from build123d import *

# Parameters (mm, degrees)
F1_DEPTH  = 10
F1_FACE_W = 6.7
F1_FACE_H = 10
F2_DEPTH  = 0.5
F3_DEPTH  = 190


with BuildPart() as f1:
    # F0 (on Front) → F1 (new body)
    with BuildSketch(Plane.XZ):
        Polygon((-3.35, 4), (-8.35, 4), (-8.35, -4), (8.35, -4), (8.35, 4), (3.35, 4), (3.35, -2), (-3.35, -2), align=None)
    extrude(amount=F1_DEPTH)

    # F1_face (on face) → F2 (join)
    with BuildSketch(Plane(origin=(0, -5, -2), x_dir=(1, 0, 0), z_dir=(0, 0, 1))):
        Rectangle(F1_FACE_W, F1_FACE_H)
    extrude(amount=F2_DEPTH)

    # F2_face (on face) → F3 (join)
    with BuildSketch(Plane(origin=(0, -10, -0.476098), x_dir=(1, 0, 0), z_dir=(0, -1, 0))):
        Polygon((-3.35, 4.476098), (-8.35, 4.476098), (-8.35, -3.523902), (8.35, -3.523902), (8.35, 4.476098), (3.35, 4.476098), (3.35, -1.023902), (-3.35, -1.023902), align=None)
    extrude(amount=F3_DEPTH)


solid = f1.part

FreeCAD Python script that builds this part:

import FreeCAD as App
import Part
import Sketcher

V = App.Vector
Q = App.Units.Quantity

doc = App.newDocument("Part")
body = doc.addObject("PartDesign::Body", "Body")

sketch1 = body.newObject("Sketcher::SketchObject", "Sketch")
sketch1.AttachmentSupport = (doc.getObject("XZ_Plane"), [""])
sketch1.MapMode = "FlatFace"
sketch1.addGeometry([
    Part.LineSegment(V(-3, 4, 0), V(-8, 4, 0)),
    Part.LineSegment(V(-8, 4, 0), V(-8, -4, 0)),
    Part.LineSegment(V(-8, -4, 0), V(8, -4, 0)),
    Part.LineSegment(V(8, -4, 0), V(8, 4, 0)),
    Part.LineSegment(V(8, 4, 0), V(3, 4, 0)),
    Part.LineSegment(V(3, 4, 0), V(3, -2, 0)),
    Part.LineSegment(V(3, -2, 0), V(-3, -2, 0)),
    Part.LineSegment(V(-3, -2, 0), V(-3, 4, 0)),
], False)
sketch1.addConstraint([
    Sketcher.Constraint("Coincident", 0, 2, 1, 1),
    Sketcher.Constraint("Coincident", 1, 2, 2, 1),
    Sketcher.Constraint("Coincident", 2, 2, 3, 1),
    Sketcher.Constraint("Coincident", 3, 2, 4, 1),
    Sketcher.Constraint("Coincident", 4, 2, 5, 1),
    Sketcher.Constraint("Coincident", 5, 2, 6, 1),
    Sketcher.Constraint("Coincident", 6, 2, 7, 1),
    Sketcher.Constraint("Coincident", 7, 2, 0, 1),
    Sketcher.Constraint("Horizontal", 0),
    Sketcher.Constraint("Vertical", 1),
    Sketcher.Constraint("Horizontal", 2),
    Sketcher.Constraint("Vertical", 3),
    Sketcher.Constraint("Horizontal", 4),
    Sketcher.Constraint("Vertical", 5),
    Sketcher.Constraint("Horizontal", 6),
    Sketcher.Constraint("Vertical", 7),
    Sketcher.Constraint("Symmetric", 0, 2, 2, 2, -1, 1),
    Sketcher.Constraint("Symmetric", 4, 2, 7, 2, -2),
    Sketcher.Constraint("DistanceX", 0, 2, 0, 1, Q("5 mm")),
    Sketcher.Constraint("DistanceY", 1, 2, 1, 1, Q("8 mm")),
    Sketcher.Constraint("DistanceY", 5, 2, 5, 1, Q("6 mm")),
    Sketcher.Constraint("DistanceX", 2, 1, 2, 2, Q("16.7 mm")),
])
pad1 = body.newObject("PartDesign::Pad", "Pad")
pad1.Profile = sketch1
pad1.Length = 10

sketch2 = body.newObject("Sketcher::SketchObject", "Sketch001")
sketch2.AttachmentSupport = (doc.getObject("XY_Plane"), [""])
sketch2.MapMode = "FlatFace"
sketch2.AttachmentOffset = App.Placement(V(0, 0, -2), App.Rotation())
sketch2.addGeometry([
    Part.LineSegment(V(-3, 0, 0), V(-3, -10, 0)),
    Part.LineSegment(V(-3, -10, 0), V(3, -10, 0)),
    Part.LineSegment(V(3, -10, 0), V(3, 0, 0)),
    Part.LineSegment(V(3, 0, 0), V(-3, 0, 0)),
], False)
sketch2.addConstraint([
    Sketcher.Constraint("Coincident", 0, 2, 1, 1),
    Sketcher.Constraint("Coincident", 1, 2, 2, 1),
    Sketcher.Constraint("Coincident", 2, 2, 3, 1),
    Sketcher.Constraint("Coincident", 3, 2, 0, 1),
    Sketcher.Constraint("Vertical", 0),
    Sketcher.Constraint("Horizontal", 1),
    Sketcher.Constraint("Vertical", 2),
    Sketcher.Constraint("Horizontal", 3),
    Sketcher.Constraint("Symmetric", 2, 2, 3, 2, -1, 1),
    Sketcher.Constraint("DistanceY", 0, 2, 0, 1, Q("10 mm")),
    Sketcher.Constraint("DistanceX", 1, 1, 1, 2, Q("6.7 mm")),
])
pad2 = body.newObject("PartDesign::Pad", "Pad001")
pad2.Profile = sketch2
pad2.Length = 0.5

sketch3 = body.newObject("Sketcher::SketchObject", "Sketch002")
sketch3.AttachmentSupport = (doc.getObject("XZ_Plane"), [""])
sketch3.MapMode = "FlatFace"
sketch3.AttachmentOffset = App.Placement(V(0, 0, 10), App.Rotation())
sketch3.addGeometry([
    Part.LineSegment(V(-3, 4, 0), V(-8, 4, 0)),
    Part.LineSegment(V(-8, 4, 0), V(-8, -4, 0)),
    Part.LineSegment(V(-8, -4, 0), V(8, -4, 0)),
    Part.LineSegment(V(8, -4, 0), V(8, 4, 0)),
    Part.LineSegment(V(8, 4, 0), V(3, 4, 0)),
    Part.LineSegment(V(3, 4, 0), V(3, -2, 0)),
    Part.LineSegment(V(3, -2, 0), V(-3, -2, 0)),
    Part.LineSegment(V(-3, -2, 0), V(-3, 4, 0)),
], False)
sketch3.addConstraint([
    Sketcher.Constraint("Coincident", 0, 2, 1, 1),
    Sketcher.Constraint("Coincident", 1, 2, 2, 1),
    Sketcher.Constraint("Coincident", 2, 2, 3, 1),
    Sketcher.Constraint("Coincident", 3, 2, 4, 1),
    Sketcher.Constraint("Coincident", 4, 2, 5, 1),
    Sketcher.Constraint("Coincident", 5, 2, 6, 1),
    Sketcher.Constraint("Coincident", 6, 2, 7, 1),
    Sketcher.Constraint("Coincident", 7, 2, 0, 1),
    Sketcher.Constraint("Horizontal", 0),
    Sketcher.Constraint("Vertical", 1),
    Sketcher.Constraint("Horizontal", 2),
    Sketcher.Constraint("Vertical", 3),
    Sketcher.Constraint("Horizontal", 4),
    Sketcher.Constraint("Vertical", 5),
    Sketcher.Constraint("Horizontal", 6),
    Sketcher.Constraint("Vertical", 7),
    Sketcher.Constraint("Symmetric", 0, 2, 2, 2, -1, 1),
    Sketcher.Constraint("Symmetric", 4, 2, 7, 2, -2),
    Sketcher.Constraint("DistanceX", 0, 2, 0, 1, Q("5 mm")),
    Sketcher.Constraint("DistanceY", 1, 2, 1, 1, Q("8 mm")),
    Sketcher.Constraint("DistanceX", 2, 1, 2, 2, Q("16.7 mm")),
    Sketcher.Constraint("DistanceY", 5, 2, 5, 1, Q("5.5 mm")),
])
pad3 = body.newObject("PartDesign::Pad", "Pad002")
pad3.Profile = sketch3
pad3.Length = 190

doc.recompute()
